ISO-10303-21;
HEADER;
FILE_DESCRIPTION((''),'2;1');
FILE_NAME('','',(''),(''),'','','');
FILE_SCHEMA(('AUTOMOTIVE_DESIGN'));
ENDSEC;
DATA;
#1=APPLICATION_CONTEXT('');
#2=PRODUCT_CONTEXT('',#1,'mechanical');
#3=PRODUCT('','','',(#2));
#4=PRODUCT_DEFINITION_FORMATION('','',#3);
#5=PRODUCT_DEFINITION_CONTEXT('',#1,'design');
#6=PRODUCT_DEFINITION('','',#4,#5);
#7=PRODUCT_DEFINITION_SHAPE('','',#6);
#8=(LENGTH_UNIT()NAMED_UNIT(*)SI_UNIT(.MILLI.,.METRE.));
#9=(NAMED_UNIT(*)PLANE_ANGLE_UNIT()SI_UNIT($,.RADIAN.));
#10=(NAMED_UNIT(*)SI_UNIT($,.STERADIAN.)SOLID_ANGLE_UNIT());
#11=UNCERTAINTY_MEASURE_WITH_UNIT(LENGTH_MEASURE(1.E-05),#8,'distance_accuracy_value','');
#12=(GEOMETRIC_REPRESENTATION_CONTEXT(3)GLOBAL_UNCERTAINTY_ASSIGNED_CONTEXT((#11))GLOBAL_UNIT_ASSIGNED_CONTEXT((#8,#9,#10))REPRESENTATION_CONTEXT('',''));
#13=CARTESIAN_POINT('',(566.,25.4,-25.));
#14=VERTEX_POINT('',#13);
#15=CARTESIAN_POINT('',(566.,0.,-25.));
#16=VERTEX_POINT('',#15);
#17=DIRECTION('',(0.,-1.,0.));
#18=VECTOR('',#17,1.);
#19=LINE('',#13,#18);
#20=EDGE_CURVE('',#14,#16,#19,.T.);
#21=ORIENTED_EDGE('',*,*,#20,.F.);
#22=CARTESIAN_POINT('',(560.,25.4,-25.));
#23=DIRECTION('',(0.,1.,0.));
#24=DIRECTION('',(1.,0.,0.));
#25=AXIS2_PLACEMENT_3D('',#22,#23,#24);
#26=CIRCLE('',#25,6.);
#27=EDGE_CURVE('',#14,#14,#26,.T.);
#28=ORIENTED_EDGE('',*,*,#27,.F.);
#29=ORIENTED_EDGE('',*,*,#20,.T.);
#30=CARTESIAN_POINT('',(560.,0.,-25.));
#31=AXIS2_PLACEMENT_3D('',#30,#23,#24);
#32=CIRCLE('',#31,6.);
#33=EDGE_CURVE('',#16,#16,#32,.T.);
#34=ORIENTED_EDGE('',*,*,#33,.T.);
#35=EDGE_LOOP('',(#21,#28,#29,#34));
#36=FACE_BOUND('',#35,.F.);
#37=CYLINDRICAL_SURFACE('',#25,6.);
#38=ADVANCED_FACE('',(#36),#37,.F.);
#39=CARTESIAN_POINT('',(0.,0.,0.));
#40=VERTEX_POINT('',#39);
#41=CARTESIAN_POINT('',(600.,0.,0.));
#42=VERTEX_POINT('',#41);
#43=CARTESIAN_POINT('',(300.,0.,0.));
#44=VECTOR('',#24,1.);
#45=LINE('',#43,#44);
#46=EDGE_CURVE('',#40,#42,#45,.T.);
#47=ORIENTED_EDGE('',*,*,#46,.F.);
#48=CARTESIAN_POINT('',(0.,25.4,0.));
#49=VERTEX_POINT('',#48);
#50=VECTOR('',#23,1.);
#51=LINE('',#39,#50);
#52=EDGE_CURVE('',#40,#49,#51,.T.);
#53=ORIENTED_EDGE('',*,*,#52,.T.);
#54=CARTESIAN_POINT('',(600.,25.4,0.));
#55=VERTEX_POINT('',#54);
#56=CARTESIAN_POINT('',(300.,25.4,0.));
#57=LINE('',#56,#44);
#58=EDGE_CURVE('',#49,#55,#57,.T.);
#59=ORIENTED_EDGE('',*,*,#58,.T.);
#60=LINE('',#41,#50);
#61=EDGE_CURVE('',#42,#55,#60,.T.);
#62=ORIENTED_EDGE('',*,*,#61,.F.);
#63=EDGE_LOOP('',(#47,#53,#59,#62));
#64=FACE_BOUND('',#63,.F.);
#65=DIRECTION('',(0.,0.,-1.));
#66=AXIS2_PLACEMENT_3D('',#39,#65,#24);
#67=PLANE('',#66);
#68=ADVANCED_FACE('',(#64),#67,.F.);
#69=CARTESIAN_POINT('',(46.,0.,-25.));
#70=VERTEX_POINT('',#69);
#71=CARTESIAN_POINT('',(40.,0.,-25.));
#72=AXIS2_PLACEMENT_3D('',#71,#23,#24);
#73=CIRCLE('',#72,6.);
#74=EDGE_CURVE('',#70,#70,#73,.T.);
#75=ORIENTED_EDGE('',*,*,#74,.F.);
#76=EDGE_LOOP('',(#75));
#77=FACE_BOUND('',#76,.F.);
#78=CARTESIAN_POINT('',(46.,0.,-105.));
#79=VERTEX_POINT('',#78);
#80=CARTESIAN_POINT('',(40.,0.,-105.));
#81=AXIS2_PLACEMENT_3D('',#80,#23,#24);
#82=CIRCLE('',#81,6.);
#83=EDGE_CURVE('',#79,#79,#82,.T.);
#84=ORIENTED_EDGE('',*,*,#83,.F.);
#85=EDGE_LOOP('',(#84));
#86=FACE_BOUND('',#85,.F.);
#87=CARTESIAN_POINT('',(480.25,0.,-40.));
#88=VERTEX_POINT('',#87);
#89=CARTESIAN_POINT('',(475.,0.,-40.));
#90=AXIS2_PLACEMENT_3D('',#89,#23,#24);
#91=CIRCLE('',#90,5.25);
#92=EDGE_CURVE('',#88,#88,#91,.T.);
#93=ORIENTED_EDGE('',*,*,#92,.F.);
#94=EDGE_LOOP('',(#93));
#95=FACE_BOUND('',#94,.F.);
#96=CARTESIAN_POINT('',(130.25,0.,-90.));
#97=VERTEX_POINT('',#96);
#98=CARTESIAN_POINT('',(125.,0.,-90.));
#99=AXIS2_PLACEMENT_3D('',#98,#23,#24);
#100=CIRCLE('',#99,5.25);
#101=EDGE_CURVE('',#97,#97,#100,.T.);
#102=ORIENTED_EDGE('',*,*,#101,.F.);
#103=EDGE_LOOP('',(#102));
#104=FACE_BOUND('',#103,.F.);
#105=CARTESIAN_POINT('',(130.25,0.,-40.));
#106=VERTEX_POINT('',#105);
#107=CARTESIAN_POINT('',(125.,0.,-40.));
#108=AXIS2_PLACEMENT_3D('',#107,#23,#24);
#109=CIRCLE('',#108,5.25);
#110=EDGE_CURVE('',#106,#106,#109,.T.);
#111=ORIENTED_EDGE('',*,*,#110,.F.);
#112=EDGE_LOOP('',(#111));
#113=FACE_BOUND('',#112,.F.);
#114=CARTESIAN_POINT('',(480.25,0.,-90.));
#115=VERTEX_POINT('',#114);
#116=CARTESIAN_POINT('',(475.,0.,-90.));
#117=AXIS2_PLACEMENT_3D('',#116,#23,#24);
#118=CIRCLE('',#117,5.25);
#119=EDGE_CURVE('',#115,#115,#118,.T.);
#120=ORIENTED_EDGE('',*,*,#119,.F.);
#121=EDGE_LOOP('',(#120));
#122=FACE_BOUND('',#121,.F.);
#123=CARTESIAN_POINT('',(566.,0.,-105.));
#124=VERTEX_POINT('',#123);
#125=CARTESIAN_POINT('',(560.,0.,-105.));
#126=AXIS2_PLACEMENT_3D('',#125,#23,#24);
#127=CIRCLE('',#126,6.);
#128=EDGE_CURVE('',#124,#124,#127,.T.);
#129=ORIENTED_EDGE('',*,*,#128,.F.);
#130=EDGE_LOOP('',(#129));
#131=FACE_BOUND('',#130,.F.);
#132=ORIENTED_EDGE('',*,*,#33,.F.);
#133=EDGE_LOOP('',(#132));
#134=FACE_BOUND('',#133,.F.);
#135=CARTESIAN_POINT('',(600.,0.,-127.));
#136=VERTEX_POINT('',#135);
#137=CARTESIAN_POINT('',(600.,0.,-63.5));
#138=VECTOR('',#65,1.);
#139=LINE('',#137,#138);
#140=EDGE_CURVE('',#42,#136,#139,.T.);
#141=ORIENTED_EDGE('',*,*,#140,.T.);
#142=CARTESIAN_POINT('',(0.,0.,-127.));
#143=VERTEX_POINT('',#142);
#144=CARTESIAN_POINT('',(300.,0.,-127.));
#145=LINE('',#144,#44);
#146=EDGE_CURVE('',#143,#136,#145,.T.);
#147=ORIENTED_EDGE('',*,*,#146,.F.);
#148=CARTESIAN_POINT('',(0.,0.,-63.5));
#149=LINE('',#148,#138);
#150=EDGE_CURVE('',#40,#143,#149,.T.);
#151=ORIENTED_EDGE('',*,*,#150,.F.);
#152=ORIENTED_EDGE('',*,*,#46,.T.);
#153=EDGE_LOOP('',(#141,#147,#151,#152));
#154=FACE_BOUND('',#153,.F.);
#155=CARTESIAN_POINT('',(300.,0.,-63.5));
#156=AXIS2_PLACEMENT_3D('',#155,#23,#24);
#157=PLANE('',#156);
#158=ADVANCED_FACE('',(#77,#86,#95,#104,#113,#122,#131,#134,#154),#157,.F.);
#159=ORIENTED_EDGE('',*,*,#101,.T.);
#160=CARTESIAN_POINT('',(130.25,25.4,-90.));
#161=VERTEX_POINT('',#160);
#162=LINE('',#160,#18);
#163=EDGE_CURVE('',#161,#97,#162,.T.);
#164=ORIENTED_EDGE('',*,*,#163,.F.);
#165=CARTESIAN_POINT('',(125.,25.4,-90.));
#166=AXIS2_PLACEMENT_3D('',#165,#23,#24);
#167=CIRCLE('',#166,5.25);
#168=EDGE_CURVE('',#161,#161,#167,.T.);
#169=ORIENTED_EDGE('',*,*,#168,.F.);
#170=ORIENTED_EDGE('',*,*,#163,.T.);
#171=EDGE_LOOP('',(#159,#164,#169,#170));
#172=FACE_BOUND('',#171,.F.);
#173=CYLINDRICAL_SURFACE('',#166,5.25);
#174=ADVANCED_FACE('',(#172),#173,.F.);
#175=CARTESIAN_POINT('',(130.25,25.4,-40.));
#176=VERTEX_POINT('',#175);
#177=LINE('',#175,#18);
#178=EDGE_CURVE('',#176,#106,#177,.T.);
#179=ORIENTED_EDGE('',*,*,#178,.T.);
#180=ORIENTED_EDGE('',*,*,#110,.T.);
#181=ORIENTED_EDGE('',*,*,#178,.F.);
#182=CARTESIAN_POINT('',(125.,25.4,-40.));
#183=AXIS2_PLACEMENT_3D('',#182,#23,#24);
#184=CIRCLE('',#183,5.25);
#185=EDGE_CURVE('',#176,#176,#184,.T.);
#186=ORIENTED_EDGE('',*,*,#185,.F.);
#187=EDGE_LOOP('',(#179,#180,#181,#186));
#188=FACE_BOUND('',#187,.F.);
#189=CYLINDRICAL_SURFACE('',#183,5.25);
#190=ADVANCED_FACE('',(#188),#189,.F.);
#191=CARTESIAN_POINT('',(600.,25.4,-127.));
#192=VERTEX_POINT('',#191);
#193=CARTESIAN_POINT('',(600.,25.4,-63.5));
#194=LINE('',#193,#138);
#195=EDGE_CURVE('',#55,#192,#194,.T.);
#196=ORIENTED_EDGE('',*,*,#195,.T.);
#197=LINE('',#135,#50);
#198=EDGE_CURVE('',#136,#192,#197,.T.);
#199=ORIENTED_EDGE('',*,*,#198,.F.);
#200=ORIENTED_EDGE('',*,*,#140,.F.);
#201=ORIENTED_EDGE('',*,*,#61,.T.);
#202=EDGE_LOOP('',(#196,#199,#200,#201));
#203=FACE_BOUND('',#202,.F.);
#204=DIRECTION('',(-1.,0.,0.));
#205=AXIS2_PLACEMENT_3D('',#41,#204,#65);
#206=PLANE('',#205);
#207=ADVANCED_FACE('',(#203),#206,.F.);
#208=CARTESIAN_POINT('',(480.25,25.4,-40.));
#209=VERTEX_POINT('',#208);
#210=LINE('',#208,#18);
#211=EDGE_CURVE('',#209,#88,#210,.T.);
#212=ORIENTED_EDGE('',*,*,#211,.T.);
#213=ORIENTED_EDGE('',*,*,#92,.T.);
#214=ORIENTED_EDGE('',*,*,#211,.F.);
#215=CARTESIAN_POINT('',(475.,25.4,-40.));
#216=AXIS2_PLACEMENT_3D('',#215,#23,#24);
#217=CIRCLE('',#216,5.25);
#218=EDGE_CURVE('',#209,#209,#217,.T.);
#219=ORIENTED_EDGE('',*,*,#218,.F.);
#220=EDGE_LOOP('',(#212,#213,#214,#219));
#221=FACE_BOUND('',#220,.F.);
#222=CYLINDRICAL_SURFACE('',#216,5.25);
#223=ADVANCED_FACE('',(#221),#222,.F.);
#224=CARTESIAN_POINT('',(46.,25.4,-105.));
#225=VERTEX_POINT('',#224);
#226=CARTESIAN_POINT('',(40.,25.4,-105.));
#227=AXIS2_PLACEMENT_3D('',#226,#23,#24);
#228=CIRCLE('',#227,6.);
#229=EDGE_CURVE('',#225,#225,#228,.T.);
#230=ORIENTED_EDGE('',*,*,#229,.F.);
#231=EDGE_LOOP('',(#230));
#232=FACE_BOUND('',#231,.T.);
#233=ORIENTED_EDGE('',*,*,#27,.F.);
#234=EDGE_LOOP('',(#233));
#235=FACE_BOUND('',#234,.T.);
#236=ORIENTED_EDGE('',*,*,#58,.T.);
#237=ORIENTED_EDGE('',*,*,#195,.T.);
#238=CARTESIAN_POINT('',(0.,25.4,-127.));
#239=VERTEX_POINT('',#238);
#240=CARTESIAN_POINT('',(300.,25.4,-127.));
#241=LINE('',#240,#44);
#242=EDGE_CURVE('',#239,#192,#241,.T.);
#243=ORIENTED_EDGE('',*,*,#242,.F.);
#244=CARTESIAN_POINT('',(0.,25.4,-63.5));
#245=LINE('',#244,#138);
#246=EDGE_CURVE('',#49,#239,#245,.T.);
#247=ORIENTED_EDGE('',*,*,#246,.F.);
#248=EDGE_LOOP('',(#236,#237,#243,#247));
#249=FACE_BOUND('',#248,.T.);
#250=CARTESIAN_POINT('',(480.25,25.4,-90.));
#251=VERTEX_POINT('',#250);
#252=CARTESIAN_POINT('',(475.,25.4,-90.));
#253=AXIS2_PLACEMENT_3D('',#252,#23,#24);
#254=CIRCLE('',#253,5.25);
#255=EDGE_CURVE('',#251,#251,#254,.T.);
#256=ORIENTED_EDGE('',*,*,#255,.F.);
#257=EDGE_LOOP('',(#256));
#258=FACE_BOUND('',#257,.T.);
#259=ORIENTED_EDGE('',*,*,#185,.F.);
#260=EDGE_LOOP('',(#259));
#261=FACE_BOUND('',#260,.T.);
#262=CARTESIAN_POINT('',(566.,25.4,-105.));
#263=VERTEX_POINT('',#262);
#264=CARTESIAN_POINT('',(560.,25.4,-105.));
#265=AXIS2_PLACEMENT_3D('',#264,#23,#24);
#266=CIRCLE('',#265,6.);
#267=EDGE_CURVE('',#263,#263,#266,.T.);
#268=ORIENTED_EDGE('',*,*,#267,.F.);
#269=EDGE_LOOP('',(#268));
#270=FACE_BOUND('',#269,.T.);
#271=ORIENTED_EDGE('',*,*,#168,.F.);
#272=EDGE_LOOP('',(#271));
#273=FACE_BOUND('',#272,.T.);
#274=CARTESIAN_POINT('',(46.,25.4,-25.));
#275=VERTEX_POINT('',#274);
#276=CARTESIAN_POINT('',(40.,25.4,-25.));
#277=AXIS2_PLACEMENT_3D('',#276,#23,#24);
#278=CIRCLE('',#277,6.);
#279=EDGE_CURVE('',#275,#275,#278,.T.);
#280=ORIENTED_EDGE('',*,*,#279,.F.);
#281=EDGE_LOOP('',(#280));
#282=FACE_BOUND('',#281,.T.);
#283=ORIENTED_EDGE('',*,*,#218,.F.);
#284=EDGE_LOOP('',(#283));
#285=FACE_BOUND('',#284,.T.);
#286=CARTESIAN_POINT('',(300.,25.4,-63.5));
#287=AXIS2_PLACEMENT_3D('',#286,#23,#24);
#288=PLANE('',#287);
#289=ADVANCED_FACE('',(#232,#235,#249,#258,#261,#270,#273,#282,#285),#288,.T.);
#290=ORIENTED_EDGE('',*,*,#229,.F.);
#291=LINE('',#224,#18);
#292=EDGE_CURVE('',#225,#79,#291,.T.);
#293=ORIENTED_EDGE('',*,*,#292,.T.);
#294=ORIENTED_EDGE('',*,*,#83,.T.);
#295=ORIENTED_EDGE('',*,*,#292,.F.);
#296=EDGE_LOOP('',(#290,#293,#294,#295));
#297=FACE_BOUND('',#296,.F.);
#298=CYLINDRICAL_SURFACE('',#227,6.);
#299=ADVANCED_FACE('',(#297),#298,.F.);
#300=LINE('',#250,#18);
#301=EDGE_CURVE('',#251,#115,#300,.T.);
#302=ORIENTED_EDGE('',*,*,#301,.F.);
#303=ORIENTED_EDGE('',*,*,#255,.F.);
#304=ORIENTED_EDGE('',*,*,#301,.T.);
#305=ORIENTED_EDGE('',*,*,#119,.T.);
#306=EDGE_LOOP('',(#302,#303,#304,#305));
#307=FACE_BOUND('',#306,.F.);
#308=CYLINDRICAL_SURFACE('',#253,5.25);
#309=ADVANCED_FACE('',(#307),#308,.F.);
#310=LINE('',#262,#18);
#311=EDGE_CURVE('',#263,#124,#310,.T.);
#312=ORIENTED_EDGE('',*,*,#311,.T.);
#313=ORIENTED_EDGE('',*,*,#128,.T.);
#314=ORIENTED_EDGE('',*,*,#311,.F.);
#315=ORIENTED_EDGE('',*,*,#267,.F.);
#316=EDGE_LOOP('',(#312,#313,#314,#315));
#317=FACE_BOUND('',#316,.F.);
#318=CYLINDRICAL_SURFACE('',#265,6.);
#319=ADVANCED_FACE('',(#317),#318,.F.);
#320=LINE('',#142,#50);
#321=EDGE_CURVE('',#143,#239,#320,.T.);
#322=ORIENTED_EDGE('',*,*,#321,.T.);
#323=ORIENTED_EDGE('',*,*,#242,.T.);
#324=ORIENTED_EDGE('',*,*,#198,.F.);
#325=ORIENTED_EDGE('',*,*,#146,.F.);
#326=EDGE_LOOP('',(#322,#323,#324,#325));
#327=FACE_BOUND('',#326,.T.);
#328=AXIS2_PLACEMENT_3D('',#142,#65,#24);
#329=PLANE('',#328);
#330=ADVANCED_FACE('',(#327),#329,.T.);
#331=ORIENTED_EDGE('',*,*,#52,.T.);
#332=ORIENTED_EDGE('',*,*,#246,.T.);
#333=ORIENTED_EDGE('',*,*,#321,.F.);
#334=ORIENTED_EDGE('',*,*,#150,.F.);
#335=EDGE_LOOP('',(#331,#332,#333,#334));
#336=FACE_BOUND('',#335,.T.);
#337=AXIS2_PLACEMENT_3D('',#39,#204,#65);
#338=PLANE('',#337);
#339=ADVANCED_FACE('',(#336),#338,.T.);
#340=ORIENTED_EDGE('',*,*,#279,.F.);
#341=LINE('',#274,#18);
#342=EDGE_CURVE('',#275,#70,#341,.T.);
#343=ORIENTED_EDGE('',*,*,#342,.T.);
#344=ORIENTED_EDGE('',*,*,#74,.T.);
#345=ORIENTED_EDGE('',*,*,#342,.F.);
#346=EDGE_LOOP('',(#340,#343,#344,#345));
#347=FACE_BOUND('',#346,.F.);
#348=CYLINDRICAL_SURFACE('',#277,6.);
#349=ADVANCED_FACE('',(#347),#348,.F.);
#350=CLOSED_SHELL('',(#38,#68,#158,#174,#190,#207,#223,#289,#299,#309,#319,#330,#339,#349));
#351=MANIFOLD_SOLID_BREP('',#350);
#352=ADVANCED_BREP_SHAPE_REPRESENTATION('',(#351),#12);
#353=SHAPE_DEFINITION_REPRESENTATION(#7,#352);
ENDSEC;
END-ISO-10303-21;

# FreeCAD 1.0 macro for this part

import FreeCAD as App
import Part
import Sketcher
from FreeCAD import Vector


def add_polygon(sketch, points):
    """Adds a closed chain of lines whose ends are joined by coincident constraints."""
    first, n = sketch.GeometryCount, len(points)
    for a, b in zip(points, points[1:] + points[:1]):
        sketch.addGeometry(Part.LineSegment(App.Vector(*a, 0), App.Vector(*b, 0)), False)
    for i in range(n):
        sketch.addConstraint(Sketcher.Constraint("Coincident", first + i, 2, first + (i + 1) % n, 1))

doc = App.newDocument("Part")
body = doc.addObject("PartDesign::Body", "Body")

sketch1 = body.newObject("Sketcher::SketchObject", "Sketch")
sketch1.AttachmentSupport = (doc.getObject("XZ_Plane"), [""])
sketch1.MapMode = "FlatFace"
add_polygon(sketch1, [(0, -127), (0, 0), (600, 0), (600, -127)])
sketch1.addConstraint([
    Sketcher.Constraint("Vertical", 0),
    Sketcher.Constraint("Horizontal", 1),
    Sketcher.Constraint("Vertical", 2),
    Sketcher.Constraint("Horizontal", 3),
    Sketcher.Constraint("Coincident", 0, 2, -1, 1),
    Sketcher.Constraint("DistanceX", 1, 1, 1, 2, 600.0),
    Sketcher.Constraint("DistanceY", 0, 1, 0, 2, 127.0),
])
pad1 = body.newObject("PartDesign::Pad", "Pad")
pad1.Profile = sketch1
pad1.Length = 25.4
pad1.Reversed = True

sketch2 = body.newObject("Sketcher::SketchObject", "Sketch001")
sketch2.AttachmentSupport = (doc.getObject("XZ_Plane"), [""])
sketch2.MapMode = "FlatFace"
sketch2.AttachmentOffset = App.Placement(Vector(0, 0, -25.4), App.Rotation())
sketch2.addGeometry([
    Part.Circle(Vector(40, -105, 0), Vector(0, 0, 1), 6),
    Part.Circle(Vector(40, -25, 0), Vector(0, 0, 1), 6),
    Part.Circle(Vector(560, -25, 0), Vector(0, 0, 1), 6),
    Part.Circle(Vector(560, -105, 0), Vector(0, 0, 1), 6),
], False)
sketch2.addConstraint([
    Sketcher.Constraint("Equal", 0, 1),
    Sketcher.Constraint("Equal", 1, 2),
    Sketcher.Constraint("Equal", 2, 3),
    Sketcher.Constraint("Horizontal", 1, 3, 2, 3),
    Sketcher.Constraint("Horizontal", 0, 3, 3, 3),
    Sketcher.Constraint("Vertical", 0, 3, 1, 3),
    Sketcher.Constraint("Vertical", 2, 3, 3, 3),
    Sketcher.Constraint("Diameter", 0, 12.0),
    Sketcher.Constraint("DistanceX", -1, 1, 0, 3, 40.0),
    Sketcher.Constraint("DistanceY", 0, 3, -1, 1, 105.0),
    Sketcher.Constraint("DistanceY", 1, 3, -1, 1, 25.0),
    Sketcher.Constraint("DistanceX", -1, 1, 2, 3, 560.0),
])
pocket1 = body.newObject("PartDesign::Pocket", "Pocket")
pocket1.Profile = sketch2
pocket1.Length = 25.4
pocket1.Reversed = True

sketch3 = body.newObject("Sketcher::SketchObject", "Sketch002")
sketch3.AttachmentSupport = (doc.getObject("XZ_Plane"), [""])
sketch3.MapMode = "FlatFace"
sketch3.AttachmentOffset = App.Placement(Vector(0, 0, -25.4), App.Rotation())
sketch3.addGeometry([
    Part.Circle(Vector(125, -90, 0), Vector(0, 0, 1), 5.25),
    Part.Circle(Vector(125, -40, 0), Vector(0, 0, 1), 5.25),
    Part.Circle(Vector(475, -40, 0), Vector(0, 0, 1), 5.25),
    Part.Circle(Vector(475, -90, 0), Vector(0, 0, 1), 5.25),
], False)
sketch3.addConstraint([
    Sketcher.Constraint("Equal", 0, 1),
    Sketcher.Constraint("Equal", 1, 2),
    Sketcher.Constraint("Equal", 2, 3),
    Sketcher.Constraint("Horizontal", 1, 3, 2, 3),
    Sketcher.Constraint("Horizontal", 0, 3, 3, 3),
    Sketcher.Constraint("Vertical", 0, 3, 1, 3),
    Sketcher.Constraint("Vertical", 2, 3, 3, 3),
    Sketcher.Constraint("Diameter", 0, 10.5),
    Sketcher.Constraint("DistanceX", -1, 1, 0, 3, 125.0),
    Sketcher.Constraint("DistanceY", 0, 3, -1, 1, 90.0),
    Sketcher.Constraint("DistanceY", 1, 3, -1, 1, 40.0),
    Sketcher.Constraint("DistanceX", -1, 1, 2, 3, 475.0),
])
pocket2 = body.newObject("PartDesign::Pocket", "Pocket001")
pocket2.Profile = sketch3
pocket2.Length = 25.4
pocket2.Reversed = True

doc.recompute()
